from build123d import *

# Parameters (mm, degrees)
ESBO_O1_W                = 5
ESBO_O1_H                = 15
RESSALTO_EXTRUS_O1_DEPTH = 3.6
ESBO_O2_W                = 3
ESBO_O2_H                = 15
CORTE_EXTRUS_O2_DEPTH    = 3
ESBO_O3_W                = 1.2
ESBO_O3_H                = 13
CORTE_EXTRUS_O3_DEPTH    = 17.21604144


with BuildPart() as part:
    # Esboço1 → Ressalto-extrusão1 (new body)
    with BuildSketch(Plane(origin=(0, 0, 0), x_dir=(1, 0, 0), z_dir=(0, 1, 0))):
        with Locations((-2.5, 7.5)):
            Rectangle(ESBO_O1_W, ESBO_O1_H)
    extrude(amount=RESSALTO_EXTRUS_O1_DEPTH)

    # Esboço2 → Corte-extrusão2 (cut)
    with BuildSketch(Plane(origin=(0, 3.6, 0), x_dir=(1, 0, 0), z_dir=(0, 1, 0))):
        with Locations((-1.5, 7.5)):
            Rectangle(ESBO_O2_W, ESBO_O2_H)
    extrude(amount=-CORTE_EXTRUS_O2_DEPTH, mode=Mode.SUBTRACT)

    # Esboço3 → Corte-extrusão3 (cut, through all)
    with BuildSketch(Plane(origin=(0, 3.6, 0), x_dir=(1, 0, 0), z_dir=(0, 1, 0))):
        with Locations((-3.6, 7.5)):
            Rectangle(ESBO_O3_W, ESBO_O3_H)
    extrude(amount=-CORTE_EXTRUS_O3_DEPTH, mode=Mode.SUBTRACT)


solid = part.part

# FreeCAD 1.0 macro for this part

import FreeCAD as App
import Part
import Sketcher
Q = App.Units.Quantity

doc = App.newDocument("Part")
body = doc.addObject("PartDesign::Body", "Body")

# Sketch on XZ plane
sketch1 = body.newObject("Sketcher::SketchObject", "Sketch")
sketch1.AttachmentSupport = (doc.getObject("XZ_Plane"), [""])
sketch1.MapMode = "FlatFace"
sketch1.addGeometry(Part.LineSegment(App.Vector(-5, -15, 0), App.Vector(-5, 0, 0)), False)
sketch1.addGeometry(Part.LineSegment(App.Vector(-5, 0, 0), App.Vector(0, 0, 0)), False)
sketch1.addGeometry(Part.LineSegment(App.Vector(0, 0, 0), App.Vector(0, -15, 0)), False)
sketch1.addGeometry(Part.LineSegment(App.Vector(0, -15, 0), App.Vector(-5, -15, 0)), False)
sketch1.addConstraint(Sketcher.Constraint("Coincident", 0, 2, 1, 1))
sketch1.addConstraint(Sketcher.Constraint("Coincident", 1, 2, 2, 1))
sketch1.addConstraint(Sketcher.Constraint("Coincident", 2, 2, 3, 1))
sketch1.addConstraint(Sketcher.Constraint("Coincident", 3, 2, 0, 1))
sketch1.addConstraint(Sketcher.Constraint("Vertical", 0))
sketch1.addConstraint(Sketcher.Constraint("Horizontal", 1))
sketch1.addConstraint(Sketcher.Constraint("Vertical", 2))
sketch1.addConstraint(Sketcher.Constraint("Horizontal", 3))
sketch1.addConstraint(Sketcher.Constraint("Coincident", 1, 2, -1, 1))
sketch1.addConstraint(Sketcher.Constraint("DistanceX", 1, 1, 1, 2, Q("5 mm")))
sketch1.addConstraint(Sketcher.Constraint("DistanceY", 0, 1, 0, 2, Q("15 mm")))
pad1 = body.newObject("PartDesign::Pad", "Pad")
pad1.Profile = sketch1
pad1.Length = 3.6
pad1.Reversed = True

# Sketch on XZ plane
sketch2 = body.newObject("Sketcher::SketchObject", "Sketch001")
sketch2.AttachmentSupport = (doc.getObject("XZ_Plane"), [""])
sketch2.MapMode = "FlatFace"
sketch2.AttachmentOffset = App.Placement(App.Vector(0, 0, -3.6), App.Rotation())
sketch2.addGeometry(Part.LineSegment(App.Vector(-3, -15, 0), App.Vector(-3, 0, 0)), False)
sketch2.addGeometry(Part.LineSegment(App.Vector(-3, 0, 0), App.Vector(0, 0, 0)), False)
sketch2.addGeometry(Part.LineSegment(App.Vector(0, 0, 0), App.Vector(0, -15, 0)), False)
sketch2.addGeometry(Part.LineSegment(App.Vector(0, -15, 0), App.Vector(-3, -15, 0)), False)
sketch2.addConstraint(Sketcher.Constraint("Coincident", 0, 2, 1, 1))
sketch2.addConstraint(Sketcher.Constraint("Coincident", 1, 2, 2, 1))
sketch2.addConstraint(Sketcher.Constraint("Coincident", 2, 2, 3, 1))
sketch2.addConstraint(Sketcher.Constraint("Coincident", 3, 2, 0, 1))
sketch2.addConstraint(Sketcher.Constraint("Vertical", 0))
sketch2.addConstraint(Sketcher.Constraint("Horizontal", 1))
sketch2.addConstraint(Sketcher.Constraint("Vertical", 2))
sketch2.addConstraint(Sketcher.Constraint("Horizontal", 3))
sketch2.addConstraint(Sketcher.Constraint("Coincident", 1, 2, -1, 1))
sketch2.addConstraint(Sketcher.Constraint("DistanceX", 1, 1, 1, 2, Q("3 mm")))
sketch2.addConstraint(Sketcher.Constraint("DistanceY", 0, 1, 0, 2, Q("15 mm")))
pocket1 = body.newObject("PartDesign::Pocket", "Pocket")
pocket1.Profile = sketch2
pocket1.Length = 3
pocket1.Reversed = True

# Sketch on XZ plane
sketch3 = body.newObject("Sketcher::SketchObject", "Sketch002")
sketch3.AttachmentSupport = (doc.getObject("XZ_Plane"), [""])
sketch3.MapMode = "FlatFace"
sketch3.AttachmentOffset = App.Placement(App.Vector(0, 0, -3.6), App.Rotation())
sketch3.addGeometry(Part.LineSegment(App.Vector(-4.2, -14, 0), App.Vector(-4.2, -1, 0)), False)
sketch3.addGeometry(Part.LineSegment(App.Vector(-4.2, -1, 0), App.Vector(-3, -1, 0)), False)
sketch3.addGeometry(Part.LineSegment(App.Vector(-3, -1, 0), App.Vector(-3, -14, 0)), False)
sketch3.addGeometry(Part.LineSegment(App.Vector(-3, -14, 0), App.Vector(-4.2, -14, 0)), False)
sketch3.addConstraint(Sketcher.Constraint("Coincident", 0, 2, 1, 1))
sketch3.addConstraint(Sketcher.Constraint("Coincident", 1, 2, 2, 1))
sketch3.addConstraint(Sketcher.Constraint("Coincident", 2, 2, 3, 1))
sketch3.addConstraint(Sketcher.Constraint("Coincident", 3, 2, 0, 1))
sketch3.addConstraint(Sketcher.Constraint("Vertical", 0))
sketch3.addConstraint(Sketcher.Constraint("Horizontal", 1))
sketch3.addConstraint(Sketcher.Constraint("Vertical", 2))
sketch3.addConstraint(Sketcher.Constraint("Horizontal", 3))
sketch3.addConstraint(Sketcher.Constraint("DistanceY", 0, 1, 0, 2, Q("13 mm")))
sketch3.addConstraint(Sketcher.Constraint("DistanceX", 1, 1, 1, 2, Q("1.2 mm")))
sketch3.addConstraint(Sketcher.Constraint("DistanceY", 0, 2, -1, 1, Q("1 mm")))
sketch3.addConstraint(Sketcher.Constraint("DistanceX", 1, 2, -1, 1, Q("3 mm")))
pocket2 = body.newObject("PartDesign::Pocket", "Pocket001")
pocket2.Profile = sketch3
pocket2.Type = "ThroughAll"
pocket2.Reversed = True

doc.recompute()
